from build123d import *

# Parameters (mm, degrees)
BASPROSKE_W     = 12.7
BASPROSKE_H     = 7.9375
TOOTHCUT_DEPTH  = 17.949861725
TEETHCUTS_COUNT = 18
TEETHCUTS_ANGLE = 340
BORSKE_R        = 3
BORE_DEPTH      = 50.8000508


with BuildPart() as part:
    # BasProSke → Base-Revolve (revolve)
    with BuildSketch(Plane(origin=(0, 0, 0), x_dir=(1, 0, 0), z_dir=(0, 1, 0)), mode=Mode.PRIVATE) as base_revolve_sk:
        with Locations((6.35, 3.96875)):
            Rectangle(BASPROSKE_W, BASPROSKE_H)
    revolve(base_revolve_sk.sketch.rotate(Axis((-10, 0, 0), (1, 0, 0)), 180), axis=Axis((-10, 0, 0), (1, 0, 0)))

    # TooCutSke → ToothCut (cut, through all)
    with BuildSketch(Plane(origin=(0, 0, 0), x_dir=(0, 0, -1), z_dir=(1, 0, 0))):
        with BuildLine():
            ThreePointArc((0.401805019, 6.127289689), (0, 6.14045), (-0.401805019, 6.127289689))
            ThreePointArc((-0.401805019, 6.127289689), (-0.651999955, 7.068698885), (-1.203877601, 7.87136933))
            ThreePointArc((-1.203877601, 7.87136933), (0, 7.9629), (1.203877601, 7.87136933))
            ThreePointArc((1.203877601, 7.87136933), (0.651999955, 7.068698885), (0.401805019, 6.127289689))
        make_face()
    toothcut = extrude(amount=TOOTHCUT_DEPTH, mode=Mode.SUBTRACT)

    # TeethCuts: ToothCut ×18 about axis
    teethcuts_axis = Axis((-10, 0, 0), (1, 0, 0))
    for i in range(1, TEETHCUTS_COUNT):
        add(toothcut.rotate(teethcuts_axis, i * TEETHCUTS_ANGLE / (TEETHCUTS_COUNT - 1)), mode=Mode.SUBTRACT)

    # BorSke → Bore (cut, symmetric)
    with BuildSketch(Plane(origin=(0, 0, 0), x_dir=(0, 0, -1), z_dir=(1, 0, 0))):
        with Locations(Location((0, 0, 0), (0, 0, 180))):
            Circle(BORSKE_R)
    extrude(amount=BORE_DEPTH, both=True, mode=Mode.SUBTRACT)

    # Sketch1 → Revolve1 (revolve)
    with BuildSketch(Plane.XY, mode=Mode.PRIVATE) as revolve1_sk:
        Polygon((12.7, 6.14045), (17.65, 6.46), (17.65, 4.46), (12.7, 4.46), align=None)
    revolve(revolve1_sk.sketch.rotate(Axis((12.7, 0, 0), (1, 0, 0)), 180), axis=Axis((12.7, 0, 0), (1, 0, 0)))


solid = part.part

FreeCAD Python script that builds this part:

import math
import FreeCAD as App
import Part
import Sketcher

V = App.Vector
Q = App.Units.Quantity


def add_polygon(sketch, points):
    """Adds a closed chain of lines whose ends are joined by coincident constraints."""
    first, n = sketch.GeometryCount, len(points)
    for a, b in zip(points, points[1:] + points[:1]):
        sketch.addGeometry(Part.LineSegment(App.Vector(*a, 0), App.Vector(*b, 0)), False)
    for i in range(n):
        sketch.addConstraint(Sketcher.Constraint("Coincident", first + i, 2, first + (i + 1) % n, 1))

doc = App.newDocument("Part")
body = doc.addObject("PartDesign::Body", "Body")

# Sketch on XZ plane
sketch1 = body.newObject("Sketcher::SketchObject", "Sketch")
sketch1.AttachmentSupport = (doc.getObject("XZ_Plane"), [""])
sketch1.MapMode = "FlatFace"
add_polygon(sketch1, [(0, -8), (0, 0), (13, 0), (13, -8)])  # lines 0-3
sketch1.addConstraint(Sketcher.Constraint("Vertical", 0))
sketch1.addConstraint(Sketcher.Constraint("Horizontal", 1))
sketch1.addConstraint(Sketcher.Constraint("Vertical", 2))
sketch1.addConstraint(Sketcher.Constraint("Horizontal", 3))
sketch1.addConstraint(Sketcher.Constraint("Coincident", 0, 2, -1, 1))
sketch1.addConstraint(Sketcher.Constraint("DistanceX", 1, 1, 1, 2, Q("0.5 in")))
sketch1.addConstraint(Sketcher.Constraint("DistanceY", 0, 1, 0, 2, Q("0.3125 in")))
revolution = body.newObject("PartDesign::Revolution", "Revolution")
revolution.Profile = sketch1
revolution.ReferenceAxis = (sketch1, ["H_Axis"])
revolution.Angle = 360

# Sketch on YZ plane
sketch2 = body.newObject("Sketcher::SketchObject", "Sketch001")
sketch2.AttachmentSupport = (doc.getObject("YZ_Plane"), [""])
sketch2.MapMode = "FlatFace"
sketch2.addGeometry(Part.ArcOfCircle(Part.Circle(V(0, 0, 0), V(0, 0, 1), 6.1), math.radians(-3.75), math.radians(3.75)), False)
sketch2.addGeometry(Part.ArcOfCircle(Part.Circle(V(5.9, -3.2, 0), V(0, 0, 1), 2.9), math.radians(46), math.radians(85)), False)
sketch2.addGeometry(Part.ArcOfCircle(Part.Circle(V(0, 0, 0), V(0, 0, 1), 8), math.radians(-8.7), math.radians(8.7)), False)
sketch2.addGeometry(Part.ArcOfCircle(Part.Circle(V(5.9, 3.2, 0), V(0, 0, 1), 2.9), math.radians(-85), math.radians(-46)), False)
sketch2.addConstraint(Sketcher.Constraint("Coincident", 0, 1, 1, 2))
sketch2.addConstraint(Sketcher.Constraint("Coincident", 1, 1, 2, 1))
sketch2.addConstraint(Sketcher.Constraint("Coincident", 2, 2, 3, 2))
sketch2.addConstraint(Sketcher.Constraint("Coincident", 3, 1, 0, 2))
sketch2.addConstraint(Sketcher.Constraint("Coincident", 0, 3, -1, 1))
sketch2.addConstraint(Sketcher.Constraint("Coincident", 2, 3, -1, 1))
sketch2.addConstraint(Sketcher.Constraint("Equal", 1, 3))
sketch2.addConstraint(Sketcher.Constraint("Symmetric", 1, 3, 3, 3, -1))
sketch2.addConstraint(Sketcher.Constraint("Radius", 1, Q("0.1125 in")))
sketch2.addConstraint(Sketcher.Constraint("Radius", 2, Q("0.3135 in")))
sketch2.addConstraint(Sketcher.Constraint("Radius", 0, Q("6.14045 mm")))
sketch2.addConstraint(Sketcher.Constraint("DistanceX", -1, 1, 0, 1, Q("6.12729 mm")))
sketch2.addConstraint(Sketcher.Constraint("DistanceX", -1, 1, 1, 1, Q("7.871369 mm")))
pocket1 = body.newObject("PartDesign::Pocket", "Pocket")
pocket1.Profile = sketch2
pocket1.Type = "ThroughAll"
pocket1.Reversed = True
doc.recompute()

polarpattern = body.newObject("PartDesign::PolarPattern", "PolarPattern")
polarpattern.Originals = [pocket1]
polarpattern.Axis = (doc.getObject("X_Axis"), [""])
polarpattern.Angle = 360
polarpattern.Occurrences = 18
body.Tip = polarpattern

# Sketch on YZ plane
sketch3 = body.newObject("Sketcher::SketchObject", "Sketch002")
sketch3.AttachmentSupport = (doc.getObject("YZ_Plane"), [""])
sketch3.MapMode = "FlatFace"
sketch3.addGeometry(Part.Circle(V(0, 0, 0), V(0, 0, 1), 3), False)
sketch3.addConstraint(Sketcher.Constraint("Coincident", 0, 3, -1, 1))
sketch3.addConstraint(Sketcher.Constraint("Diameter", 0, Q("6 mm")))
pocket2 = body.newObject("PartDesign::Pocket", "Pocket001")
pocket2.Profile = sketch3
pocket2.Length = 101.600102
pocket2.Midplane = True

# Sketch on XY plane
sketch4 = body.newObject("Sketcher::SketchObject", "Sketch003")
sketch4.AttachmentSupport = (doc.getObject("XY_Plane"), [""])
sketch4.MapMode = "FlatFace"
add_polygon(sketch4, [(17.6, 6.5), (12.7, 6.1), (12.7, 4.5), (17.6, 4.5)])  # lines 0-3
sketch4.addConstraint(Sketcher.Constraint("Vertical", 1))
sketch4.addConstraint(Sketcher.Constraint("Horizontal", 2))
sketch4.addConstraint(Sketcher.Constraint("Vertical", 3))
sketch4.addConstraint(Sketcher.Constraint("DistanceX", -1, 1, 0, 2, Q("0.5 in")))
sketch4.addConstraint(Sketcher.Constraint("DistanceX", 2, 1, 2, 2, Q("4.95 mm")))
sketch4.addConstraint(Sketcher.Constraint("DistanceY", 3, 1, 3, 2, Q("2 mm")))
sketch4.addConstraint(Sketcher.Constraint("DistanceY", 1, 2, 1, 1, Q("1.68045 mm")))
sketch4.addConstraint(Sketcher.Constraint("DistanceY", -1, 1, 1, 2, Q("4.46 mm")))
revolution2 = body.newObject("PartDesign::Revolution", "Revolution001")
revolution2.Profile = sketch4
revolution2.ReferenceAxis = (sketch4, ["H_Axis"])
revolution2.Angle = 360

doc.recompute()
